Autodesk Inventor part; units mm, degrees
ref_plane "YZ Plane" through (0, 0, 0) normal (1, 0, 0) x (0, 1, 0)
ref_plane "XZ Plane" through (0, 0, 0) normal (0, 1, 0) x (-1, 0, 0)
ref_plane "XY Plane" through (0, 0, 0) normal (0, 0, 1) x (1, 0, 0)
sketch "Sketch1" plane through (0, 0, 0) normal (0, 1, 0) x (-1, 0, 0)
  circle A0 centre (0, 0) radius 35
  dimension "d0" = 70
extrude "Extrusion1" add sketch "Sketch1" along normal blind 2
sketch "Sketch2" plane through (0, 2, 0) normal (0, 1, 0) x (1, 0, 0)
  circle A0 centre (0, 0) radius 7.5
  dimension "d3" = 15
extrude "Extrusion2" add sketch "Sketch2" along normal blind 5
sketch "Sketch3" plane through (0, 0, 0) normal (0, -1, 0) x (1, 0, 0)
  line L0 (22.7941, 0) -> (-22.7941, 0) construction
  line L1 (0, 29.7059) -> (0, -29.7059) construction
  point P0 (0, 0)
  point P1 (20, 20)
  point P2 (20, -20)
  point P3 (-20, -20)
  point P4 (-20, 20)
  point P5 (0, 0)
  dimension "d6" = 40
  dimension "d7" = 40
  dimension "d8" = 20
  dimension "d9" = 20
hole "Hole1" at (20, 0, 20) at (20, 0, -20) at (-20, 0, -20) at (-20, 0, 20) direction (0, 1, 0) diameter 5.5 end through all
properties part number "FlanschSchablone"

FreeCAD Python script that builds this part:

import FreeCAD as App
import Part
import Sketcher
Q = App.Units.Quantity

doc = App.newDocument("Part")
params = doc.addObject("Spreadsheet::Sheet", "Params")
for row, (alias, value) in enumerate([
    ("sketch1_diameter", "70 mm"),
    ("pad1_length", "2 mm"),
    ("sketch2_diameter", "15 mm"),
    ("pad2_length", "5 mm"),
    ("sketch3_diameter", "5.5 mm"),
    ("hole_diameter", "5.5 mm"),
], start=1):
    params.set(f"A{row}", alias)
    params.set(f"B{row}", "=" + value)
    params.setAlias(f"B{row}", alias)

body = doc.addObject("PartDesign::Body", "Body")

# Sketch on XZ plane
sketch1 = doc.addObject("Sketcher::SketchObject", "Sketch")
body.addObject(sketch1)
sketch1.AttachmentSupport = (doc.XZ_Plane, [""])
sketch1.MapMode = "FlatFace"
sketch1.addGeometry(Part.Circle(App.Vector(0, 0, 0), App.Vector(0, 0, 1), 35), False)
sketch1.addConstraint([
    Sketcher.Constraint("Coincident", 0, 3, -1, 1),
    Sketcher.Constraint("Diameter", 0, Q("70 mm")),
])
sketch1.setExpression("Constraints[1]", "Params.sketch1_diameter")
pad1 = doc.addObject("PartDesign::Pad", "Pad")
body.addObject(pad1)
pad1.Profile = sketch1
pad1.setExpression("Length", "Params.pad1_length")
pad1.Reversed = True

# Sketch on XZ plane
sketch2 = doc.addObject("Sketcher::SketchObject", "Sketch001")
body.addObject(sketch2)
sketch2.AttachmentSupport = (doc.XZ_Plane, [""])
sketch2.MapMode = "FlatFace"
sketch2.AttachmentOffset = App.Placement(App.Vector(0, 0, -2), App.Rotation())
sketch2.addGeometry(Part.Circle(App.Vector(0, 0, 0), App.Vector(0, 0, 1), 7.5), False)
sketch2.addConstraint([
    Sketcher.Constraint("Coincident", 0, 3, -1, 1),
    Sketcher.Constraint("Diameter", 0, Q("15 mm")),
])
sketch2.setExpression("Constraints[1]", "Params.sketch2_diameter")
pad2 = doc.addObject("PartDesign::Pad", "Pad001")
body.addObject(pad2)
pad2.Profile = sketch2
pad2.setExpression("Length", "Params.pad2_length")
pad2.Reversed = True

# Sketch on XZ plane
sketch3 = doc.addObject("Sketcher::SketchObject", "Sketch002")
body.addObject(sketch3)
sketch3.AttachmentSupport = (doc.XZ_Plane, [""])
sketch3.MapMode = "FlatFace"
sketch3.addGeometry([
    Part.Circle(App.Vector(20, 20, 0), App.Vector(0, 0, 1), 2.75),
    Part.Circle(App.Vector(20, -20, 0), App.Vector(0, 0, 1), 2.75),
    Part.Circle(App.Vector(-20, -20, 0), App.Vector(0, 0, 1), 2.75),
    Part.Circle(App.Vector(-20, 20, 0), App.Vector(0, 0, 1), 2.75),
], False)
sketch3.addConstraint([
    Sketcher.Constraint("Equal", 0, 1),
    Sketcher.Constraint("Equal", 1, 2),
    Sketcher.Constraint("Equal", 2, 3),
    Sketcher.Constraint("Symmetric", 0, 3, 2, 3, -1, 1),
    Sketcher.Constraint("Symmetric", 1, 3, 3, 3, -1, 1),
    Sketcher.Constraint("Symmetric", 1, 3, 2, 3, -2),
    Sketcher.Constraint("Diameter", 0, Q("5.5 mm")),
    Sketcher.Constraint("DistanceX", -1, 1, 0, 3, Q("20 mm")),
    Sketcher.Constraint("DistanceY", -1, 1, 0, 3, Q("20 mm")),
])
sketch3.setExpression("Constraints[6]", "Params.sketch3_diameter")
doc.recompute()
hole = doc.addObject("PartDesign::Hole", "Hole")
body.addObject(hole)
hole.Profile = sketch3
hole.ThreadType = "None"
hole.setExpression("Diameter", "Params.hole_diameter")
hole.DepthType = "ThroughAll"

doc.recompute()
